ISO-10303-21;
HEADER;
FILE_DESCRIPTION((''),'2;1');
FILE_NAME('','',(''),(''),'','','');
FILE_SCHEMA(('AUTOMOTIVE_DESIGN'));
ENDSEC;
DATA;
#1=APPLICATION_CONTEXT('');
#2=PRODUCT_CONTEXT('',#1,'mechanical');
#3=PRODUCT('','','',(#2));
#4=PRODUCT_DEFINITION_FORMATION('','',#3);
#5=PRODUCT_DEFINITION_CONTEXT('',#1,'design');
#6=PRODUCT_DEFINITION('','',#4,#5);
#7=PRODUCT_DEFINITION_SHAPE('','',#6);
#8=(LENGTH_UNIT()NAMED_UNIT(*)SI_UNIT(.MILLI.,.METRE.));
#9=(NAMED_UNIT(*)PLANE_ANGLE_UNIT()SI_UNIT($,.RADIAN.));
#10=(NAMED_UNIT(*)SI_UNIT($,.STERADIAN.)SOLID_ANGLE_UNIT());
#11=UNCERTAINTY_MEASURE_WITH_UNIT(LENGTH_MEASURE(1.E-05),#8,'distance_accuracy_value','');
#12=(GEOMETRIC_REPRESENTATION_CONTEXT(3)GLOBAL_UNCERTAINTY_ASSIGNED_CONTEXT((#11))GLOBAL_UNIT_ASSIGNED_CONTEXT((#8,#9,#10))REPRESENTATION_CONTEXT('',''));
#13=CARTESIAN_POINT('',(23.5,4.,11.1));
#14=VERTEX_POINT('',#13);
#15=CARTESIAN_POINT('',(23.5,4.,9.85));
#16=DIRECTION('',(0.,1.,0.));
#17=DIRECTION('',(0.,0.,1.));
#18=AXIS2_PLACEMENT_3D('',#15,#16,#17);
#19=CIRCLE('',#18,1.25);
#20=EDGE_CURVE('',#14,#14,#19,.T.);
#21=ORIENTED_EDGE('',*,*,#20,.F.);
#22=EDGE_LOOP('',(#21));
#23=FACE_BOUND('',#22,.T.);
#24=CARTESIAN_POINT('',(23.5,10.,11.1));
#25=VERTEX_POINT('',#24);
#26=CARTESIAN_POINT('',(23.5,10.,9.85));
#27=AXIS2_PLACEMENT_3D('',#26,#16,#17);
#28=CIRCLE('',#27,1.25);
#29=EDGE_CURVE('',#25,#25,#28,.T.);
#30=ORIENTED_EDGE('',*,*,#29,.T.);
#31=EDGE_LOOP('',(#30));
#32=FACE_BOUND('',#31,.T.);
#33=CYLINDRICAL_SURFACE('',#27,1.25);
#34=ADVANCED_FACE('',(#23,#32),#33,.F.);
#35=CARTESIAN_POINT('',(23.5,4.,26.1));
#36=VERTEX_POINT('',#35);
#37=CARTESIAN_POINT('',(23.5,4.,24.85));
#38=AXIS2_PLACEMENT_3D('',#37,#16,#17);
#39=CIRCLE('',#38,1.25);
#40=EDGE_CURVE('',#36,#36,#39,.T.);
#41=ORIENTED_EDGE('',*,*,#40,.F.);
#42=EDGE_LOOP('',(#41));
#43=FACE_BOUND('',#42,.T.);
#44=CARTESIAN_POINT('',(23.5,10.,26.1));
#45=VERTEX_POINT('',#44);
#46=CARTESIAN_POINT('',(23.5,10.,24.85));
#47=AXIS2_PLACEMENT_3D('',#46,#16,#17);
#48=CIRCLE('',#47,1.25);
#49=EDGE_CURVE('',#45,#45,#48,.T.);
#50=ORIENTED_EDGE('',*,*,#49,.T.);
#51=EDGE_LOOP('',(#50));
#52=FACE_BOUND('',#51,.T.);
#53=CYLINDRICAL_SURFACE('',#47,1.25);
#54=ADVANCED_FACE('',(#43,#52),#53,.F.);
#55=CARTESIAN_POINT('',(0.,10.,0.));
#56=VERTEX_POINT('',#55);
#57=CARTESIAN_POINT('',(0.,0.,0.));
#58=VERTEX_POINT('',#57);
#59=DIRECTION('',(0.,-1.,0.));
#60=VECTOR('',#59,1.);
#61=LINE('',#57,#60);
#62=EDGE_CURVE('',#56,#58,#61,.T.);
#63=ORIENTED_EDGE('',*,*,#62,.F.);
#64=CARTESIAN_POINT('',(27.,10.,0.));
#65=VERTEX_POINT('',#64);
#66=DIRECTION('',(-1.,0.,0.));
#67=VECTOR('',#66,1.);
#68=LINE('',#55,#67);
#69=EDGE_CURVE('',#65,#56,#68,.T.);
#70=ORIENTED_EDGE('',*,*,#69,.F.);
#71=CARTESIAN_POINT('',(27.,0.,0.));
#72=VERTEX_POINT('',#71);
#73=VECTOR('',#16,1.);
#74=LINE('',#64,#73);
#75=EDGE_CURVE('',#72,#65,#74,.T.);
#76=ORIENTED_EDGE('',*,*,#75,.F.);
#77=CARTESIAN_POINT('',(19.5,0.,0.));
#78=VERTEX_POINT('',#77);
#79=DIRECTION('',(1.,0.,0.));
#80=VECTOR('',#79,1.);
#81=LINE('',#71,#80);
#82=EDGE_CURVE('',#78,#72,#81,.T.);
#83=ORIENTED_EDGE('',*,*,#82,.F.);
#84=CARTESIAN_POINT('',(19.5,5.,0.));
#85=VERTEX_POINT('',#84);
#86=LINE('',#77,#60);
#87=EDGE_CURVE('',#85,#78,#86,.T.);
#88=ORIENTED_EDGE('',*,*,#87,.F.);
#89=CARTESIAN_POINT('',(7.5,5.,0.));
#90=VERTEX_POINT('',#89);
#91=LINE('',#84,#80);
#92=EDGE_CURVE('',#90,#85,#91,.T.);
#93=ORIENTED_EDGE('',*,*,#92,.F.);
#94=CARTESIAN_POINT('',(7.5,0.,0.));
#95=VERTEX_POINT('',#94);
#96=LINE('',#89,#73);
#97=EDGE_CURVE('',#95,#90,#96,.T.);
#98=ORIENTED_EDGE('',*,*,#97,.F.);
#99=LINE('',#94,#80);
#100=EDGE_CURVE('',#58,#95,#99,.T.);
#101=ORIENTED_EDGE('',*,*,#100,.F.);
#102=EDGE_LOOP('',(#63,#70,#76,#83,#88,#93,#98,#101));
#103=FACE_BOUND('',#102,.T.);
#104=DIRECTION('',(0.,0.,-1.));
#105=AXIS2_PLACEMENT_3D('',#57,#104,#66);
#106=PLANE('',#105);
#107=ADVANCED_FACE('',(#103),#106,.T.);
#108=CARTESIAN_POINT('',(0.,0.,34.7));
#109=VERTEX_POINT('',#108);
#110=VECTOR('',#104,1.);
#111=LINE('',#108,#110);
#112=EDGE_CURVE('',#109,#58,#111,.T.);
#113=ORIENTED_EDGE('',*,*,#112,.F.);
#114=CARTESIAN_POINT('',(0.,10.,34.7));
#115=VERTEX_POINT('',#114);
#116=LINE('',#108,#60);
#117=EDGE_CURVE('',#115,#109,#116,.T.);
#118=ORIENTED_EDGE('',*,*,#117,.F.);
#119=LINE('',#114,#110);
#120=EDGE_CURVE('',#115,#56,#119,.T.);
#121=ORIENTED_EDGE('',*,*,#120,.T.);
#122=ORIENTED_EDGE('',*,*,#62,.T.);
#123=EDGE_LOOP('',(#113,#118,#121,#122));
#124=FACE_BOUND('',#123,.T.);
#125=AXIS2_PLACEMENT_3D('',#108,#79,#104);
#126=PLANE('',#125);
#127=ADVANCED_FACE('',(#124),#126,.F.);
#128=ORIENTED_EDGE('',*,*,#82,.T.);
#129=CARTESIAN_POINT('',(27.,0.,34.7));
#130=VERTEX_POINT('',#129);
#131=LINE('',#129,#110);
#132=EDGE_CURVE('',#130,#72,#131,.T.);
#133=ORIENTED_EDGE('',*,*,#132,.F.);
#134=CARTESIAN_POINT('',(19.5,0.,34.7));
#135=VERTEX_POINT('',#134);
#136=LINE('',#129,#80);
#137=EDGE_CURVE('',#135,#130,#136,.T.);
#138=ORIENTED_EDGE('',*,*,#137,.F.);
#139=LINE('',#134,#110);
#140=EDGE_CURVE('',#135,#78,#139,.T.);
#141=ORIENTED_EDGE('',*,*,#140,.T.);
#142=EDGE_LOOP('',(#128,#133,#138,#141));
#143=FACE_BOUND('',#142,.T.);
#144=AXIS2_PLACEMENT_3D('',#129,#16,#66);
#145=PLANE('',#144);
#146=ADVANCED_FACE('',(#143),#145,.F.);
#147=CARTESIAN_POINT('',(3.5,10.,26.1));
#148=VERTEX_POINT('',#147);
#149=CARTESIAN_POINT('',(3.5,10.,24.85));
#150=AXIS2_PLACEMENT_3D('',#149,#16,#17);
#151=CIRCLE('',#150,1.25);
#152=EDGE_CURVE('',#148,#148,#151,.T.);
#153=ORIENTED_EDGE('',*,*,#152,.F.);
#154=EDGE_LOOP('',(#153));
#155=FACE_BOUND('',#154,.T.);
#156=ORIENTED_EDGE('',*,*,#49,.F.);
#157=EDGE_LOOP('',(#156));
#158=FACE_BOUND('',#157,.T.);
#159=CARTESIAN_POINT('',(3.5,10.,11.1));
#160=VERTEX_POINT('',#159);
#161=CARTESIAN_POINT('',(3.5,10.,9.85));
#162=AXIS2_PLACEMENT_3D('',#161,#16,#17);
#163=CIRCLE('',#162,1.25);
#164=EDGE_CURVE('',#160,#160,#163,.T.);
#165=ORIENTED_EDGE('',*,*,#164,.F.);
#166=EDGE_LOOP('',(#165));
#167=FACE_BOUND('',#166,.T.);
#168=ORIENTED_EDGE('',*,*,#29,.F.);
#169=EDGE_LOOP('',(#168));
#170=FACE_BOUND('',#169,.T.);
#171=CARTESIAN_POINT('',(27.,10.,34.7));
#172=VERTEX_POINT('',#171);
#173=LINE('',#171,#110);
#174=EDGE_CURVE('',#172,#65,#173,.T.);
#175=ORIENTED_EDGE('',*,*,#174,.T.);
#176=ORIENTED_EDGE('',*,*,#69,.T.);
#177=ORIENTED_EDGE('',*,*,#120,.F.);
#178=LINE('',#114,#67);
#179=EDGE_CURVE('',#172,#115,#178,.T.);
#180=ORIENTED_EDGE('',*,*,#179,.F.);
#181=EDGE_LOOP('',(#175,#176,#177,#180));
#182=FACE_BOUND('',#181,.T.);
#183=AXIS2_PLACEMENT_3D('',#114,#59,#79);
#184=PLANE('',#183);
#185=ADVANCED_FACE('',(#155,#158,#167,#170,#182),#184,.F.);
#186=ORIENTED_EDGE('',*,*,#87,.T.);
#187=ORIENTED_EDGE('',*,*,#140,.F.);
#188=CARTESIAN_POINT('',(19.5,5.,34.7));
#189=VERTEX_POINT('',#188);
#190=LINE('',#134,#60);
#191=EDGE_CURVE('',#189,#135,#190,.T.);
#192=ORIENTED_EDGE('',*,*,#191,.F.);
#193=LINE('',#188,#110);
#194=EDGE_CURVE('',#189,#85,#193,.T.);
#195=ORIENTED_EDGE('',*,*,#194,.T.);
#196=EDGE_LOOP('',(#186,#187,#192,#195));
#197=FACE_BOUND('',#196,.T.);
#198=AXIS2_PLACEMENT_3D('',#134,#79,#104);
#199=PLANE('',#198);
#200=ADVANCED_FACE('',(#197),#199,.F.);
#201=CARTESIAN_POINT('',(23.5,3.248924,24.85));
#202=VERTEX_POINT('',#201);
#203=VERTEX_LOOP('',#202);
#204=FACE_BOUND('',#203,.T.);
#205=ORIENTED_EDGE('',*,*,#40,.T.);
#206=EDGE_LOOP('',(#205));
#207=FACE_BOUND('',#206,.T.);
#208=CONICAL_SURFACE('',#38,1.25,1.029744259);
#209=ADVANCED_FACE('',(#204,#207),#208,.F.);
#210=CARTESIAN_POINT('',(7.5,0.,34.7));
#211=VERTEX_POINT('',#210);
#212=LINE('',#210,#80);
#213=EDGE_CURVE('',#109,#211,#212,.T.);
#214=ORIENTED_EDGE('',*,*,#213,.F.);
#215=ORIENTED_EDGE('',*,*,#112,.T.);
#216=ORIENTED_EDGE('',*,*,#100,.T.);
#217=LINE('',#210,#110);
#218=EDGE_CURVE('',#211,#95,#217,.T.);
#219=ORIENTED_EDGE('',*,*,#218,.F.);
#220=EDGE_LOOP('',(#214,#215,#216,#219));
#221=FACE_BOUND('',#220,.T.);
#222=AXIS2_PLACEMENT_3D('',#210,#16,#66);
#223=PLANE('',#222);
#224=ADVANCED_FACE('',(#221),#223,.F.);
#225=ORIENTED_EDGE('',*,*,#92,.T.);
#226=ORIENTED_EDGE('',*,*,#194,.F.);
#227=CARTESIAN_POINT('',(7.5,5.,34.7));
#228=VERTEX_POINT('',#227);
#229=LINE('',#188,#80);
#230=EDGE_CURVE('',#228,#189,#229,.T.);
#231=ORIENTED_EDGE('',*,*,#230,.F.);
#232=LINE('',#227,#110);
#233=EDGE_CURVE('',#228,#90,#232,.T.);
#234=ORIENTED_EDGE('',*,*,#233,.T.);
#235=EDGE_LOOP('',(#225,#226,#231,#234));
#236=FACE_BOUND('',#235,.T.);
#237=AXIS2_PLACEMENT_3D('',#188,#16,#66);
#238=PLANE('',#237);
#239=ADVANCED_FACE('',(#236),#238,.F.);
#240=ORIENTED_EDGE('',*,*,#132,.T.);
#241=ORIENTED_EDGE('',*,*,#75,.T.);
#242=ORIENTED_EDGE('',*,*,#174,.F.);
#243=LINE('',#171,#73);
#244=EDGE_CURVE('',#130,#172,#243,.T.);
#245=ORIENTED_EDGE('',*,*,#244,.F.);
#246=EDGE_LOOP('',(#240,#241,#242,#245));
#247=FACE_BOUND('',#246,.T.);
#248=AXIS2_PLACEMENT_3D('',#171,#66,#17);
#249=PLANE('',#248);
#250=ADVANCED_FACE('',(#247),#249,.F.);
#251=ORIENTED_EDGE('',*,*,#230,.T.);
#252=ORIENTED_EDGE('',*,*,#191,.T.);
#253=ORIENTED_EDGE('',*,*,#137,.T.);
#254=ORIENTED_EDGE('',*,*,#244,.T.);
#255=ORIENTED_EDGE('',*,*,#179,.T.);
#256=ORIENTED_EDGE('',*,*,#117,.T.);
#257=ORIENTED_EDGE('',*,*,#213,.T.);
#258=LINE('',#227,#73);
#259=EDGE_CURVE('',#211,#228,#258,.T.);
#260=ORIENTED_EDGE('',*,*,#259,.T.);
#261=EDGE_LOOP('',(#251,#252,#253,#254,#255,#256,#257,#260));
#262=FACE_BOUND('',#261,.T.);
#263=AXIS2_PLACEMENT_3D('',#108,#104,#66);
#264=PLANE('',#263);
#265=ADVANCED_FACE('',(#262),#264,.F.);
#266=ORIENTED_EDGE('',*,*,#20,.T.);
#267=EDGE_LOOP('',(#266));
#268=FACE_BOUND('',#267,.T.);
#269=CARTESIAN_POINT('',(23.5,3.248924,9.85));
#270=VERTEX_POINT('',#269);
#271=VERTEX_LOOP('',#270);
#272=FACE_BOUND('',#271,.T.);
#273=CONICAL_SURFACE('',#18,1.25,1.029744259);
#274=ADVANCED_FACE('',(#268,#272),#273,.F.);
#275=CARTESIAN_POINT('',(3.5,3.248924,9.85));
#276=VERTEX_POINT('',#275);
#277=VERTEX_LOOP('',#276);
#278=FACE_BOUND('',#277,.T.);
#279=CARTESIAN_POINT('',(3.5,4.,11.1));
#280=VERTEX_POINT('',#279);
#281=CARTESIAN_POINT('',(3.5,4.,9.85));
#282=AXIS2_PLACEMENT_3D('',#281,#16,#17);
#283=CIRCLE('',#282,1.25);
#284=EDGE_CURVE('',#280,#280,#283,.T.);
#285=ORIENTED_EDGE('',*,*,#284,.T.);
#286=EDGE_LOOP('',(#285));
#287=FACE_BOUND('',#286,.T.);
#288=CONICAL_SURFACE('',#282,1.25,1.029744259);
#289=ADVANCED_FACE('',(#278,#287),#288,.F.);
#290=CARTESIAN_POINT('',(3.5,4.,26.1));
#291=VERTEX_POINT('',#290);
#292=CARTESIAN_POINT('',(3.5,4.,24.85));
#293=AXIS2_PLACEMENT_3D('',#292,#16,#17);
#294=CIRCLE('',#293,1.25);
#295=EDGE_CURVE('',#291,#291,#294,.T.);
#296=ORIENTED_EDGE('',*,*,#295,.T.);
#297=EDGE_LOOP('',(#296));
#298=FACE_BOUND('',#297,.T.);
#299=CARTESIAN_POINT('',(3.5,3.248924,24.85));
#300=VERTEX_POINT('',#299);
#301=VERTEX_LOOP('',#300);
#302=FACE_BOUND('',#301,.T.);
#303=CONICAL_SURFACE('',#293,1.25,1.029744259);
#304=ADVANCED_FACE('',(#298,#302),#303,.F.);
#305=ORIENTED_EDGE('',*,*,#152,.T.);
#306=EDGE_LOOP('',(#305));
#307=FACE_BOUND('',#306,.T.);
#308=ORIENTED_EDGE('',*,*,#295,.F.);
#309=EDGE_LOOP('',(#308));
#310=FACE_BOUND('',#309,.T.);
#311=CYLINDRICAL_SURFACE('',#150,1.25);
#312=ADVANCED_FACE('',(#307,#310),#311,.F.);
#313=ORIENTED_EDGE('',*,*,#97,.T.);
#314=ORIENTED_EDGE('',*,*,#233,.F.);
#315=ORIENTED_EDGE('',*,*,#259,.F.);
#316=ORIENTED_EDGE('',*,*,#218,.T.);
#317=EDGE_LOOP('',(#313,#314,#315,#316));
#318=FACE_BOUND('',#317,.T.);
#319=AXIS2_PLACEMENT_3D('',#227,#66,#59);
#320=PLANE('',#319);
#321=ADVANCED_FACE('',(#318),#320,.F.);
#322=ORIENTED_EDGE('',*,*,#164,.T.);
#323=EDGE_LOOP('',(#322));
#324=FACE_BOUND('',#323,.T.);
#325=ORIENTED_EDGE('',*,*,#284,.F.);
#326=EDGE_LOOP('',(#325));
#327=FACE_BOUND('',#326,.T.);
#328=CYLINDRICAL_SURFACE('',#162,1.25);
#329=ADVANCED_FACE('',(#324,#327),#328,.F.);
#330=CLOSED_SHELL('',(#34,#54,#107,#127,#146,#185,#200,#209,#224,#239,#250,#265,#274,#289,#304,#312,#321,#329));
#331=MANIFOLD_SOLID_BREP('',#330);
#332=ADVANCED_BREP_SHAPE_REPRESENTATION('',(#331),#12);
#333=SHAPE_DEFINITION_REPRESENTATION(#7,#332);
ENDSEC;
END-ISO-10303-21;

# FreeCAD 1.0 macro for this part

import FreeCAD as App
import Part
import Sketcher
from FreeCAD import Vector


def add_polygon(sketch, points):
    """Adds a closed chain of lines whose ends are joined by coincident constraints."""
    first, n = sketch.GeometryCount, len(points)
    for a, b in zip(points, points[1:] + points[:1]):
        sketch.addGeometry(Part.LineSegment(App.Vector(*a, 0), App.Vector(*b, 0)), False)
    for i in range(n):
        sketch.addConstraint(Sketcher.Constraint("Coincident", first + i, 2, first + (i + 1) % n, 1))

doc = App.newDocument("Part")
body = doc.addObject("PartDesign::Body", "Body")

sketch1 = body.newObject("Sketcher::SketchObject", "Sketch")
sketch1.AttachmentSupport = (doc.getObject("XY_Plane"), [""])
sketch1.MapMode = "FlatFace"
add_polygon(sketch1, [(0, 10), (0, 0), (7.5, 0), (7.5, 5), (19.5, 5), (19.5, 0), (27, 0), (27, 10)])
sketch1.addConstraint([
    Sketcher.Constraint("Vertical", 0),
    Sketcher.Constraint("Horizontal", 1),
    Sketcher.Constraint("Vertical", 2),
    Sketcher.Constraint("Horizontal", 3),
    Sketcher.Constraint("Vertical", 4),
    Sketcher.Constraint("Horizontal", 5),
    Sketcher.Constraint("Vertical", 6),
    Sketcher.Constraint("Horizontal", 7),
    Sketcher.Constraint("Coincident", 0, 2, -1, 1),
    Sketcher.Constraint("PointOnObject", 4, 2, -1),
    Sketcher.Constraint("Equal", 1, 5),
    Sketcher.Constraint("DistanceX", 3, 1, 3, 2, 12.0),
    Sketcher.Constraint("DistanceX", 7, 2, 7, 1, 27.0),
    Sketcher.Constraint("DistanceY", 0, 2, 0, 1, 10.0),
    Sketcher.Constraint("DistanceY", 2, 1, 2, 2, 5.0),
])
pad1 = body.newObject("PartDesign::Pad", "Pad")
pad1.Profile = sketch1
pad1.Length = 34.7

sketch2 = body.newObject("Sketcher::SketchObject", "Sketch001")
sketch2.AttachmentSupport = (doc.getObject("XZ_Plane"), [""])
sketch2.MapMode = "FlatFace"
sketch2.AttachmentOffset = App.Placement(Vector(0, 0, -10), App.Rotation())
sketch2.addGeometry([
    Part.Circle(Vector(23.5, 9.85, 0), Vector(0, 0, 1), 1.25),
    Part.Circle(Vector(3.5, 9.85, 0), Vector(0, 0, 1), 1.25),
    Part.Circle(Vector(3.5, 24.85, 0), Vector(0, 0, 1), 1.25),
    Part.Circle(Vector(23.5, 24.85, 0), Vector(0, 0, 1), 1.25),
], False)
sketch2.addConstraint([
    Sketcher.Constraint("Equal", 0, 1),
    Sketcher.Constraint("Equal", 1, 2),
    Sketcher.Constraint("Equal", 2, 3),
    Sketcher.Constraint("Horizontal", 0, 3, 1, 3),
    Sketcher.Constraint("Horizontal", 2, 3, 3, 3),
    Sketcher.Constraint("Vertical", 1, 3, 2, 3),
    Sketcher.Constraint("Vertical", 0, 3, 3, 3),
    Sketcher.Constraint("Diameter", 0, 2.5),
    Sketcher.Constraint("DistanceX", 1, 3, 0, 3, 20.0),
    Sketcher.Constraint("DistanceY", 1, 3, 2, 3, 15.0),
    Sketcher.Constraint("DistanceX", -1, 1, 0, 3, 23.5),
    Sketcher.Constraint("DistanceY", -1, 1, 0, 3, 9.85),
])
doc.recompute()
hole = body.newObject("PartDesign::Hole", "Hole")
hole.Profile = sketch2
hole.ThreadType = "None"
hole.Diameter = 2.5
hole.DepthType = "Dimension"
hole.Depth = 6
hole.DrillPoint = "Angled"
hole.DrillPointAngle = 118
hole.Reversed = True

doc.recompute()
